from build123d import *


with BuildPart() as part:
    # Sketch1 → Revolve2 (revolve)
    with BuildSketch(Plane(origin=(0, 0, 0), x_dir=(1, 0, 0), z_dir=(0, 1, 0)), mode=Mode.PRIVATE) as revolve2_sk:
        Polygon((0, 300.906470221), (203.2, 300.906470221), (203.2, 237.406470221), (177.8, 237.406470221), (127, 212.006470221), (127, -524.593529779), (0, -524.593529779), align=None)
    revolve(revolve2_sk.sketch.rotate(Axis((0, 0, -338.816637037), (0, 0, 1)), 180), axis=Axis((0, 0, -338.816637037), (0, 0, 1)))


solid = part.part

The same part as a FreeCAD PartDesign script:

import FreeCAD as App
import Part
import Sketcher
Q = App.Units.Quantity

doc = App.newDocument("Part")
body = doc.addObject("PartDesign::Body", "Body")

# Sketch on XZ plane
sketch1 = doc.addObject("Sketcher::SketchObject", "Sketch")
body.addObject(sketch1)
sketch1.AttachmentSupport = (doc.XZ_Plane, [""])
sketch1.MapMode = "FlatFace"
sketch1.addGeometry([
    Part.LineSegment(App.Vector(203, -301, 0), App.Vector(0, -301, 0)),  # 0
    Part.LineSegment(App.Vector(0, -301, 0), App.Vector(0, 525, 0)),  # 1
    Part.LineSegment(App.Vector(0, 525, 0), App.Vector(127, 525, 0)),  # 2
    Part.LineSegment(App.Vector(127, 525, 0), App.Vector(127, -212, 0)),  # 3
    Part.LineSegment(App.Vector(127, -212, 0), App.Vector(178, -237, 0)),  # 4
    Part.LineSegment(App.Vector(178, -237, 0), App.Vector(203, -237, 0)),  # 5
    Part.LineSegment(App.Vector(203, -237, 0), App.Vector(203, -301, 0)),  # 6
], False)
sketch1.addConstraint([
    Sketcher.Constraint("Coincident", 0, 2, 1, 1),
    Sketcher.Constraint("Coincident", 1, 2, 2, 1),
    Sketcher.Constraint("Coincident", 2, 2, 3, 1),
    Sketcher.Constraint("Coincident", 3, 2, 4, 1),
    Sketcher.Constraint("Coincident", 4, 2, 5, 1),
    Sketcher.Constraint("Coincident", 5, 2, 6, 1),
    Sketcher.Constraint("Coincident", 6, 2, 0, 1),
    Sketcher.Constraint("Horizontal", 0),
    Sketcher.Constraint("Vertical", 1),
    Sketcher.Constraint("Horizontal", 2),
    Sketcher.Constraint("Vertical", 3),
    Sketcher.Constraint("Horizontal", 5),
    Sketcher.Constraint("Vertical", 6),
    Sketcher.Constraint("PointOnObject", 0, 2, -2),
    Sketcher.Constraint("DistanceX", 0, 2, 0, 1, Q("8 in")),
    Sketcher.Constraint("DistanceX", 2, 1, 2, 2, Q("5 in")),
    Sketcher.Constraint("DistanceX", 5, 1, 5, 2, Q("1 in")),
    Sketcher.Constraint("DistanceY", 3, 2, 3, 1, Q("29 in")),
    Sketcher.Constraint("DistanceY", 1, 1, 1, 2, Q("32.5 in")),
    Sketcher.Constraint("DistanceY", 6, 2, 6, 1, Q("2.5 in")),
    Sketcher.Constraint("DistanceY", 0, 2, -1, 1, 300.90647),
])
revolution = doc.addObject("PartDesign::Revolution", "Revolution")
body.addObject(revolution)
revolution.Profile = sketch1
revolution.ReferenceAxis = (sketch1, ["V_Axis"])
revolution.Angle = 360

doc.recompute()
